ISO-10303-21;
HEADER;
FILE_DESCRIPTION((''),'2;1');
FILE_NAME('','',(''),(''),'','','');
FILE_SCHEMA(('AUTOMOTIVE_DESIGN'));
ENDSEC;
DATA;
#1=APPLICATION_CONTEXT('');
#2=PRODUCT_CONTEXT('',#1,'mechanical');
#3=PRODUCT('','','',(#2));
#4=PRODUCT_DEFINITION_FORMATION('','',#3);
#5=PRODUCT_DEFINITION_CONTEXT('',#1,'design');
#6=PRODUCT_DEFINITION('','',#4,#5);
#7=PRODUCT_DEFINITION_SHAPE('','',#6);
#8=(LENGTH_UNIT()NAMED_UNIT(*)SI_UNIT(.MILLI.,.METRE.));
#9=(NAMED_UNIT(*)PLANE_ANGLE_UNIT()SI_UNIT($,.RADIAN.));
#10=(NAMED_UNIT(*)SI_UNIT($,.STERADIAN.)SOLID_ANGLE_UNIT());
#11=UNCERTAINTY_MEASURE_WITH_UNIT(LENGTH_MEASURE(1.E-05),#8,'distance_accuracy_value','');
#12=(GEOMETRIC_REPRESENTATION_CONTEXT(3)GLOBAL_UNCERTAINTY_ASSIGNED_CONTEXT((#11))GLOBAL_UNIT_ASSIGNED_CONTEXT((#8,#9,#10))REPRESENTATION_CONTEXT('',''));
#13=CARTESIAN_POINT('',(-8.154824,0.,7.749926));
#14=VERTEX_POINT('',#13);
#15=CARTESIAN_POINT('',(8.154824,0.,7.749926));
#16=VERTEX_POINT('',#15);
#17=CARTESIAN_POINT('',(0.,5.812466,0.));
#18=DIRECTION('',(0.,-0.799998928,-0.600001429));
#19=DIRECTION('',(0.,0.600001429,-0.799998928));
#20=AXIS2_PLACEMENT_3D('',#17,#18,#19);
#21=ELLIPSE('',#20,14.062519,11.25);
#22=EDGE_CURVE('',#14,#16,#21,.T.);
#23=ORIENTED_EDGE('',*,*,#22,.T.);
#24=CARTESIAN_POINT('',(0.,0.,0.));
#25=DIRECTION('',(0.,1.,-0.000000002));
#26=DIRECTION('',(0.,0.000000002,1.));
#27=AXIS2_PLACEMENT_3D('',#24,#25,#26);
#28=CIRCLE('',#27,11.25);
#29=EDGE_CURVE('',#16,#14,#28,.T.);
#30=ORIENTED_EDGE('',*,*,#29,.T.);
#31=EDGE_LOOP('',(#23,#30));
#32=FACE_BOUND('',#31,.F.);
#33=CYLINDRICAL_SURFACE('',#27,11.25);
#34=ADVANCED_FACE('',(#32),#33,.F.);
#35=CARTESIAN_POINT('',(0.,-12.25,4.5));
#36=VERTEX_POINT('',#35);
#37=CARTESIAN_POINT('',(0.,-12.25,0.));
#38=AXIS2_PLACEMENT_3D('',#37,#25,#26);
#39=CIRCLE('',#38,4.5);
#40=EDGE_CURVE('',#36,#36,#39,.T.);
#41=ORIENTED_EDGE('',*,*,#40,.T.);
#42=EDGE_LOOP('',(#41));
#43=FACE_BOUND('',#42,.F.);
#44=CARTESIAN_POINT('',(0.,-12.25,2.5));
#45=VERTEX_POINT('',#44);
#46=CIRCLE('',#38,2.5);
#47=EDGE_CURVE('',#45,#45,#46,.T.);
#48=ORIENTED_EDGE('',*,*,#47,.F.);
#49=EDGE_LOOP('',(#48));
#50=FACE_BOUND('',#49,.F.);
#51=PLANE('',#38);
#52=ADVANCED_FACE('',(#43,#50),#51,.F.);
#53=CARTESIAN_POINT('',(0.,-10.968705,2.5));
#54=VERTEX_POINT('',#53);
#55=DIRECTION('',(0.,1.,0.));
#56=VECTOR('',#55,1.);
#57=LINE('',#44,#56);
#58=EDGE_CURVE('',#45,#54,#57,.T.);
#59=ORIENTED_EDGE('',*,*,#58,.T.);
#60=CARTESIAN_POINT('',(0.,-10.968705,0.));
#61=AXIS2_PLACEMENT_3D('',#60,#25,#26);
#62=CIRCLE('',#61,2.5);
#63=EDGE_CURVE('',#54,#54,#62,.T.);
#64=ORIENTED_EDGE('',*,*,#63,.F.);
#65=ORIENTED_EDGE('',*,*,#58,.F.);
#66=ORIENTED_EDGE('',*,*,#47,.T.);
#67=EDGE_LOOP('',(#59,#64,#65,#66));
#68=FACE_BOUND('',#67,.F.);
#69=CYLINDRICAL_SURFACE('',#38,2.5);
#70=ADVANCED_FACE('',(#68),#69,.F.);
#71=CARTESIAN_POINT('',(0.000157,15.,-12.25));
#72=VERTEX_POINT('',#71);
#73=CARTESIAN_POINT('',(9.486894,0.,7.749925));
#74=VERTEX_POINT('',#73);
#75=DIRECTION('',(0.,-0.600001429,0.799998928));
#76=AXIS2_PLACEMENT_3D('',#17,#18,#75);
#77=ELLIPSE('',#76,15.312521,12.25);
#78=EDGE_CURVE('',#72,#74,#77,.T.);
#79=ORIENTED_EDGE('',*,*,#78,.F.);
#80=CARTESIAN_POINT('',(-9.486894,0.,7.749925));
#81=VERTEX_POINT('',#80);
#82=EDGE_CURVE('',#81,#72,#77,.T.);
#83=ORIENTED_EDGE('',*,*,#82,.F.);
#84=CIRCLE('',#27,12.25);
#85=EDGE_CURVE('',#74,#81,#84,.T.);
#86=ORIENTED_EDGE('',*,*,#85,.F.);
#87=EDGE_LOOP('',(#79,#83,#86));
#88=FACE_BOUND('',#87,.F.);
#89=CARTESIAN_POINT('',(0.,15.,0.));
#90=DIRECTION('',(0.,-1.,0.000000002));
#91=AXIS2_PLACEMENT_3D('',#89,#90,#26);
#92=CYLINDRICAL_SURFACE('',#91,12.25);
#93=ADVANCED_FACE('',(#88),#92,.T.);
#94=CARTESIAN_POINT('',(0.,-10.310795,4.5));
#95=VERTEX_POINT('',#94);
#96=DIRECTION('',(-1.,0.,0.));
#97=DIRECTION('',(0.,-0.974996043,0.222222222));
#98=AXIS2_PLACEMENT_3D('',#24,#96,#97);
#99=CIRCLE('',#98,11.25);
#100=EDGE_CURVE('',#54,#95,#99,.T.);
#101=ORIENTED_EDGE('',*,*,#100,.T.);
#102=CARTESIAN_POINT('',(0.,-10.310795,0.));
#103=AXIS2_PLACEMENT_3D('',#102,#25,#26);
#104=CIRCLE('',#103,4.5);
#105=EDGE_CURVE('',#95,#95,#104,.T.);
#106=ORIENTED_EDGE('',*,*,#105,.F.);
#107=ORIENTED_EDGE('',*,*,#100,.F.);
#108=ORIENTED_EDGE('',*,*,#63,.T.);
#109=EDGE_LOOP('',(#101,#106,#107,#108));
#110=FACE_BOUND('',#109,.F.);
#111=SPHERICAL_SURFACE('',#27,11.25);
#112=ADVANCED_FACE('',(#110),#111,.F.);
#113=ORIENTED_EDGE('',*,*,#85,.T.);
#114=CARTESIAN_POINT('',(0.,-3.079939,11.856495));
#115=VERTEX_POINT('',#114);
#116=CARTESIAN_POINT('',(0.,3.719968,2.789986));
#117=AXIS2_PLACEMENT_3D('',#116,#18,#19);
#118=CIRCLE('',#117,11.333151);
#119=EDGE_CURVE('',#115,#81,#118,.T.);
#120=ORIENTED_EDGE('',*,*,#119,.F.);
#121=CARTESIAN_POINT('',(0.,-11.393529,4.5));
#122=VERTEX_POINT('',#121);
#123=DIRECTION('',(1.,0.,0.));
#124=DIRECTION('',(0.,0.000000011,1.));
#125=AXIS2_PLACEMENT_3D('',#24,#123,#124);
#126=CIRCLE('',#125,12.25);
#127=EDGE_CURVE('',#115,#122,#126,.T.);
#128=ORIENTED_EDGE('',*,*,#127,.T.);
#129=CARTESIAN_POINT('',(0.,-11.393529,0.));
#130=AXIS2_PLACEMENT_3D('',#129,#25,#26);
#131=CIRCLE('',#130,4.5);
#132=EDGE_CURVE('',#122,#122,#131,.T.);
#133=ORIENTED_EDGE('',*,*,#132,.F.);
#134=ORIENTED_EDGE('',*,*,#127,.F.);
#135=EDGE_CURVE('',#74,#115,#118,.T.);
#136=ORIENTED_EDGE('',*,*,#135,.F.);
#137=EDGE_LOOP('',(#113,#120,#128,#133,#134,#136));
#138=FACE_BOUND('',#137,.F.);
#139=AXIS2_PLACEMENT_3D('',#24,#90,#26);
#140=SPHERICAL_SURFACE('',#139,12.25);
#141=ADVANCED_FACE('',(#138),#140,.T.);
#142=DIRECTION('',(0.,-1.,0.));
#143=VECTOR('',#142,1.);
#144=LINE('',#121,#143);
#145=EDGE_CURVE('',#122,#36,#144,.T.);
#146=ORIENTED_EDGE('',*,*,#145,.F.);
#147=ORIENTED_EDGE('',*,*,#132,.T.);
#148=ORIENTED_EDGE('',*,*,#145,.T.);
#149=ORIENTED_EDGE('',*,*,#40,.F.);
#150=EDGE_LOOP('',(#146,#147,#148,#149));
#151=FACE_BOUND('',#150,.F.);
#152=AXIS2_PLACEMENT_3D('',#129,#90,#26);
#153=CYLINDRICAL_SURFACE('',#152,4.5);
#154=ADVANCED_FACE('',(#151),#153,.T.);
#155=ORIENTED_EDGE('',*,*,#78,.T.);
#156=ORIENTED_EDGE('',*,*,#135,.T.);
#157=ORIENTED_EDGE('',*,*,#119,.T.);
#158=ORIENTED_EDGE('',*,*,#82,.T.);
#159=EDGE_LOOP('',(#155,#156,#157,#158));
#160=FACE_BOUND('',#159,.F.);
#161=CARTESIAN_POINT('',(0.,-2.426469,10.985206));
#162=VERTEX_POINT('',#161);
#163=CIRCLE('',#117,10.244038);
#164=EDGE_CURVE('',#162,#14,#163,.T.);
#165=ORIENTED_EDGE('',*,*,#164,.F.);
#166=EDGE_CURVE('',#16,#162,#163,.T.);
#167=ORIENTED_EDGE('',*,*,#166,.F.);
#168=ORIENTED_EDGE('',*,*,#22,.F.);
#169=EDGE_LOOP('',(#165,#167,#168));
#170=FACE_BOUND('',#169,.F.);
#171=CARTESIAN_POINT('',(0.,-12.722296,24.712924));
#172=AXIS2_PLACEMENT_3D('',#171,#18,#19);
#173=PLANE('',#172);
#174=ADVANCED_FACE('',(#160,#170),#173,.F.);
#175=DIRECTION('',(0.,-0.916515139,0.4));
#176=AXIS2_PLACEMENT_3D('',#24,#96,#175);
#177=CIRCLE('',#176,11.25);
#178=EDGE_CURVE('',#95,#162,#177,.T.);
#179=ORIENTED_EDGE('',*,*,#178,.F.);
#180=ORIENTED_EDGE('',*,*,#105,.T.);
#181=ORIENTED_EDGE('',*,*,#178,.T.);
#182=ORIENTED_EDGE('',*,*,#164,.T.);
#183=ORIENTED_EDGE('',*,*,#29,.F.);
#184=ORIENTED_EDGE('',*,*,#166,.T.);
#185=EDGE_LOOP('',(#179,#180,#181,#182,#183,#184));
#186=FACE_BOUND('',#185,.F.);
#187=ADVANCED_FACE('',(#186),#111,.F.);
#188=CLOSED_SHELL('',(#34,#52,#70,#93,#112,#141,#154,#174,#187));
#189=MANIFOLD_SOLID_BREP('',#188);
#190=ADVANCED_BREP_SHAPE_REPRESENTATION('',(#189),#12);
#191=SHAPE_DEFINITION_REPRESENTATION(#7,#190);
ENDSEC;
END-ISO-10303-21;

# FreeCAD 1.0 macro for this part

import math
import FreeCAD as App
import Part
import Sketcher

V = App.Vector
Q = App.Units.Quantity


def add_polygon(sketch, points):
    """Adds a closed chain of lines whose ends are joined by coincident constraints."""
    first, n = sketch.GeometryCount, len(points)
    for a, b in zip(points, points[1:] + points[:1]):
        sketch.addGeometry(Part.LineSegment(App.Vector(*a, 0), App.Vector(*b, 0)), False)
    for i in range(n):
        sketch.addConstraint(Sketcher.Constraint("Coincident", first + i, 2, first + (i + 1) % n, 1))

doc = App.newDocument("Part")
body = doc.addObject("PartDesign::Body", "Body")

# Sketch on YZ plane
sketch1 = body.newObject("Sketcher::SketchObject", "Sketch")
sketch1.AttachmentSupport = (doc.getObject("YZ_Plane"), [""])
sketch1.MapMode = "FlatFace"
sketch1.addGeometry(Part.LineSegment(V(15, 12.25, 0), V(0, 12.25, 0)), False)
sketch1.addGeometry(Part.ArcOfCircle(Part.Circle(V(0, 0, 0), V(0, 0, 1), 12.25), math.radians(89.999999), math.radians(158.447911)), False)
sketch1.addGeometry(Part.LineSegment(V(-11.393529, 4.5, 0), V(-12.25, 4.5, 0)), False)
sketch1.addGeometry(Part.LineSegment(V(-12.25, 4.5, 0), V(-12.25, 2.5, 0)), False)
sketch1.addGeometry(Part.LineSegment(V(-12.25, 2.5, 0), V(-10.968705, 2.5, 0)), False)
sketch1.addGeometry(Part.ArcOfCircle(Part.Circle(V(0, 0, 0), V(0, 0, 1), 11.25), math.radians(156.421822), math.radians(167.160412)), False)
sketch1.addGeometry(Part.ArcOfCircle(Part.Circle(V(0, 0, 0), V(0, 0, 1), 11.25), math.radians(90), math.radians(156.421822)), False)
sketch1.addGeometry(Part.LineSegment(V(0, 11.25, 0), V(15, 11.25, 0)), False)
sketch1.addGeometry(Part.LineSegment(V(15, 11.25, 0), V(15, 12.25, 0)), False)
sketch1.addGeometry(Part.LineSegment(V(-12.25, 0, 0), V(15, 0, 0)), True)  # axis
sketch1.addConstraint(Sketcher.Constraint("Tangent", 0, 2, 1, 1))
sketch1.addConstraint(Sketcher.Constraint("Coincident", 1, 2, 2, 1))
sketch1.addConstraint(Sketcher.Constraint("Coincident", 2, 2, 3, 1))
sketch1.addConstraint(Sketcher.Constraint("Coincident", 3, 2, 4, 1))
sketch1.addConstraint(Sketcher.Constraint("Coincident", 4, 2, 5, 2))
sketch1.addConstraint(Sketcher.Constraint("Tangent", 5, 1, 6, 2))
sketch1.addConstraint(Sketcher.Constraint("Tangent", 6, 1, 7, 1))
sketch1.addConstraint(Sketcher.Constraint("Coincident", 7, 2, 8, 1))
sketch1.addConstraint(Sketcher.Constraint("Coincident", 8, 2, 0, 1))
sketch1.addConstraint(Sketcher.Constraint("Horizontal", 0))
sketch1.addConstraint(Sketcher.Constraint("Horizontal", 2))
sketch1.addConstraint(Sketcher.Constraint("Vertical", 3))
sketch1.addConstraint(Sketcher.Constraint("Horizontal", 4))
sketch1.addConstraint(Sketcher.Constraint("Horizontal", 7))
sketch1.addConstraint(Sketcher.Constraint("Vertical", 8))
sketch1.addConstraint(Sketcher.Constraint("Horizontal", 9))
sketch1.addConstraint(Sketcher.Constraint("Coincident", 1, 3, -1, 1))
sketch1.addConstraint(Sketcher.Constraint("Coincident", 5, 3, -1, 1))
sketch1.addConstraint(Sketcher.Constraint("Equal", 5, 6))
sketch1.addConstraint(Sketcher.Constraint("PointOnObject", 9, 1, -1))
sketch1.addConstraint(Sketcher.Constraint("Horizontal", 2, 2, 5, 1))
sketch1.addConstraint(Sketcher.Constraint("Vertical", 3, 2, 9, 1))
sketch1.addConstraint(Sketcher.Constraint("Vertical", 8, 2, 9, 2))
sketch1.addConstraint(Sketcher.Constraint("DistanceX", 0, 2, 0, 1, 15.0))
sketch1.addConstraint(Sketcher.Constraint("DistanceY", 3, 2, 3, 1, 2.0))
sketch1.addConstraint(Sketcher.Constraint("DistanceY", 8, 1, 8, 2, 1.0))
sketch1.addConstraint(Sketcher.Constraint("Radius", 1, 12.25))
sketch1.addConstraint(Sketcher.Constraint("DistanceX", 9, 1, 9, 2, 27.25))
sketch1.addConstraint(Sketcher.Constraint("DistanceY", -1, 1, 1, 2, 4.5))
revolution = body.newObject("PartDesign::Revolution", "Revolution")
revolution.Profile = sketch1
revolution.ReferenceAxis = (sketch1, ["Axis0"])
revolution.Angle = 360

# Sketch on YZ plane
sketch2 = body.newObject("Sketcher::SketchObject", "Sketch001")
sketch2.AttachmentSupport = (doc.getObject("YZ_Plane"), [""])
sketch2.MapMode = "FlatFace"
add_polygon(sketch2, [(-12.722296, 24.712924), (15, -12.25), (15, 24.712924)])  # lines 0-2
sketch2.addConstraint(Sketcher.Constraint("Vertical", 1))
sketch2.addConstraint(Sketcher.Constraint("Horizontal", 2))
sketch2.addConstraint(Sketcher.Constraint("DistanceX", -1, 1, 0, 2, 15.0))
sketch2.addConstraint(Sketcher.Constraint("Angle", 0, Q("-53.13 deg")))
sketch2.addConstraint(Sketcher.Constraint("DistanceY", 0, 2, -1, 1, 12.25))
sketch2.addConstraint(Sketcher.Constraint("DistanceX", 2, 2, 2, 1, 27.722296))
pocket1 = body.newObject("PartDesign::Pocket", "Pocket")
pocket1.Profile = sketch2
pocket1.Length = 30
pocket1.Midplane = True

doc.recompute()
